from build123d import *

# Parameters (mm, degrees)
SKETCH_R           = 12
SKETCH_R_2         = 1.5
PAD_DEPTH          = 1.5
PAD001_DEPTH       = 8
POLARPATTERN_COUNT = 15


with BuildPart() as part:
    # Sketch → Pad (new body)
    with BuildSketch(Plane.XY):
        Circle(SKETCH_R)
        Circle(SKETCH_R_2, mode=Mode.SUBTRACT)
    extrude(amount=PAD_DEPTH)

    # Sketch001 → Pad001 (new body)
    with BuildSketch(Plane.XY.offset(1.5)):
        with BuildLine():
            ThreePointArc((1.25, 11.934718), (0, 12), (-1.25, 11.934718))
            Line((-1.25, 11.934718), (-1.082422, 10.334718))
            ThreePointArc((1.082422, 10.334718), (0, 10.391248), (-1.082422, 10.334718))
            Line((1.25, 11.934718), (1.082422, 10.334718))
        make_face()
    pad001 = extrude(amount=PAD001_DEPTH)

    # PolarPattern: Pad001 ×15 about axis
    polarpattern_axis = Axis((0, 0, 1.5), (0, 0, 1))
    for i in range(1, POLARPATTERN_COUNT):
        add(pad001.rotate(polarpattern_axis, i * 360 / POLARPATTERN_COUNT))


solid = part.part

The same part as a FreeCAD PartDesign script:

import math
import FreeCAD as App
import Part
import Sketcher
from FreeCAD import Vector
Q = App.Units.Quantity

doc = App.newDocument("Part")
body = doc.addObject("PartDesign::Body", "Body")

# Sketch on XY plane
sketch1 = body.newObject("Sketcher::SketchObject", "Sketch")
sketch1.AttachmentSupport = (doc.getObject("XY_Plane"), [""])
sketch1.MapMode = "FlatFace"
sketch1.addGeometry([
    Part.Circle(Vector(0, 0, 0), Vector(0, 0, 1), 12),
    Part.Circle(Vector(0, 0, 0), Vector(0, 0, 1), 1.5),
], False)
sketch1.addConstraint([
    Sketcher.Constraint("Coincident", 0, 3, -1, 1),
    Sketcher.Constraint("Coincident", 1, 3, -1, 1),
    Sketcher.Constraint("Diameter", 0, Q("24 mm")),
    Sketcher.Constraint("Diameter", 1, Q("3 mm")),
])
pad1 = body.newObject("PartDesign::Pad", "Pad")
pad1.Profile = sketch1
pad1.Length = 1.5

# Sketch on XY plane
sketch2 = body.newObject("Sketcher::SketchObject", "Sketch001")
sketch2.AttachmentSupport = (doc.getObject("XY_Plane"), [""])
sketch2.MapMode = "FlatFace"
sketch2.AttachmentOffset = App.Placement(Vector(0, 0, 1.5), App.Rotation())
sketch2.addGeometry([
    Part.ArcOfCircle(Part.Circle(Vector(0, 0.000048, 0), Vector(0, 0, 1), 11.999952), math.radians(84.020819), math.radians(95.979181)),
    Part.LineSegment(Vector(-1.25, 11.934718, 0), Vector(-1.082422, 10.334718, 0)),
    Part.ArcOfCircle(Part.Circle(Vector(0, 0.000013, 0), Vector(0, 0, 1), 10.391235), math.radians(84.020834), math.radians(95.979166)),
    Part.LineSegment(Vector(1.082422, 10.334718, 0), Vector(1.25, 11.934718, 0)),
], False)
sketch2.addConstraint([
    Sketcher.Constraint("Coincident", 0, 2, 1, 1),
    Sketcher.Constraint("Coincident", 1, 2, 2, 2),
    Sketcher.Constraint("Coincident", 2, 1, 3, 1),
    Sketcher.Constraint("Coincident", 3, 2, 0, 1),
    Sketcher.Constraint("Symmetric", 1, 2, 2, 1, -2),
    Sketcher.Constraint("Symmetric", 0, 2, 3, 2, -2),
    Sketcher.Constraint("DistanceY", 1, 2, 0, 2, Q("1.6 mm")),
    Sketcher.Constraint("DistanceX", 0, 2, 3, 2, Q("2.5 mm")),
    Sketcher.Constraint("Radius", 0, Q("11.999952 mm")),
    Sketcher.Constraint("Radius", 2, Q("10.391235 mm")),
    Sketcher.Constraint("Distance", 1, Q("1.608752 mm")),
    Sketcher.Constraint("DistanceY", -1, 1, 0, 2, Q("11.934718 mm")),
])
pad2 = body.newObject("PartDesign::Pad", "Pad001")
pad2.Profile = sketch2
pad2.Length = 8
doc.recompute()

polarpattern = body.newObject("PartDesign::PolarPattern", "PolarPattern")
polarpattern.Originals = [pad2]
polarpattern.Axis = (doc.getObject("Z_Axis"), [""])
polarpattern.Angle = 360
polarpattern.Occurrences = 15
body.Tip = polarpattern

doc.recompute()
